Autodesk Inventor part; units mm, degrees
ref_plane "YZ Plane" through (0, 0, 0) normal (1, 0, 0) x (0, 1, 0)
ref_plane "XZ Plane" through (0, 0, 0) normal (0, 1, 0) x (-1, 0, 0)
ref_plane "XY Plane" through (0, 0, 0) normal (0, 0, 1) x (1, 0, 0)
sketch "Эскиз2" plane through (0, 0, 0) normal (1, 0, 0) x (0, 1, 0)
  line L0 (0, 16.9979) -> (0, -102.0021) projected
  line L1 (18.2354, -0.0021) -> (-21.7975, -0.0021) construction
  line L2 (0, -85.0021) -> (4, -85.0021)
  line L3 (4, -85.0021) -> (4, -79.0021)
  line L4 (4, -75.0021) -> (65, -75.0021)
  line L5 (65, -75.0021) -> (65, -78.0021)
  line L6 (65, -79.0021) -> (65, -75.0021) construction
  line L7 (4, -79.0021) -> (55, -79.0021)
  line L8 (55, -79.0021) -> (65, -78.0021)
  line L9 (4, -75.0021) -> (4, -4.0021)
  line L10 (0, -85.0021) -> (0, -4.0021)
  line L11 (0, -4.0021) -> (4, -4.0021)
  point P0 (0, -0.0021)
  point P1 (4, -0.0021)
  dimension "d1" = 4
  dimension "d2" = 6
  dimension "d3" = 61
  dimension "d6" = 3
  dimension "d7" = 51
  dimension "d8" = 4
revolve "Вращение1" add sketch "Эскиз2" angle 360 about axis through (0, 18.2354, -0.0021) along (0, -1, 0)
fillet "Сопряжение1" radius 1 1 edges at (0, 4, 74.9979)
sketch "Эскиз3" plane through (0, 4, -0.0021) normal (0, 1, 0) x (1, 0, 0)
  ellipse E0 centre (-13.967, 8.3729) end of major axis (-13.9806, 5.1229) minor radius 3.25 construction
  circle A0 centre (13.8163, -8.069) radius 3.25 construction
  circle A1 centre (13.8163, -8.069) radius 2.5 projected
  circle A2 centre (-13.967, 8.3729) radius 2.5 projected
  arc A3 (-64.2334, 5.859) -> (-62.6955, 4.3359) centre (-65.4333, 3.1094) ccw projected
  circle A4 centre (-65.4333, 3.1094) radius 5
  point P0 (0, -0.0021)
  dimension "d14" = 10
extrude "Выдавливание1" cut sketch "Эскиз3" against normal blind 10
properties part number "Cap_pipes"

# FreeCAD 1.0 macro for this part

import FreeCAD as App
import Part
import Sketcher


def edges_at(feature, points):
    """Names of the edges that pass closest to the given points."""
    edges = feature.Shape.Edges
    near = lambda p: min(range(len(edges)), key=lambda i: edges[i].distToShape(Part.Vertex(*p))[0])
    return sorted({f"Edge{near(p) + 1}" for p in points})


def add_polygon(sketch, points):
    """Adds a closed chain of lines whose ends are joined by coincident constraints."""
    first, n = sketch.GeometryCount, len(points)
    for a, b in zip(points, points[1:] + points[:1]):
        sketch.addGeometry(Part.LineSegment(App.Vector(*a, 0), App.Vector(*b, 0)), False)
    for i in range(n):
        sketch.addConstraint(Sketcher.Constraint("Coincident", first + i, 2, first + (i + 1) % n, 1))

doc = App.newDocument("Part")
params = doc.addObject("Spreadsheet::Sheet", "Params")
for row, (alias, value) in enumerate([
    ("sketch1_width", "4 mm"),
    ("sketch1_width2", "51 mm"),
    ("sketch1_width3", "61 mm"),
    ("sketch1_height", "6 mm"),
    ("sketch1_height2", "3 mm"),
    ("revolution_angle", "360 deg"),
    ("fillet_radius", "1 mm"),
    ("sketch2_diameter", "10 mm"),
    ("sketch2_diameter2", "5 mm"),
    ("pocket1_length", "10 mm"),
], start=1):
    params.set(f"A{row}", alias)
    params.set(f"B{row}", "=" + value)
    params.setAlias(f"B{row}", alias)

body = doc.addObject("PartDesign::Body", "Body")

# Sketch on YZ plane
sketch1 = body.newObject("Sketcher::SketchObject", "Sketch")
sketch1.AttachmentSupport = (doc.getObject("YZ_Plane"), [""])
sketch1.MapMode = "FlatFace"
add_polygon(sketch1, [(4, -4), (0, -4), (0, -85), (4, -85), (4, -79), (55, -79), (65, -78), (65, -75), (4, -75)])  # lines 0-8
sketch1.addGeometry(Part.LineSegment(App.Vector(65, 0, 0), App.Vector(0, 0, 0)), True)  # axis
sketch1.addConstraint(Sketcher.Constraint("Horizontal", 0))
sketch1.addConstraint(Sketcher.Constraint("Vertical", 1))
sketch1.addConstraint(Sketcher.Constraint("Horizontal", 2))
sketch1.addConstraint(Sketcher.Constraint("Vertical", 3))
sketch1.addConstraint(Sketcher.Constraint("Horizontal", 4))
sketch1.addConstraint(Sketcher.Constraint("Vertical", 6))
sketch1.addConstraint(Sketcher.Constraint("Horizontal", 7))
sketch1.addConstraint(Sketcher.Constraint("Vertical", 8))
sketch1.addConstraint(Sketcher.Constraint("Horizontal", 9))
sketch1.addConstraint(Sketcher.Constraint("PointOnObject", 0, 2, -2))
sketch1.addConstraint(Sketcher.Constraint("PointOnObject", 9, 2, -2))
sketch1.addConstraint(Sketcher.Constraint("Vertical", 3, 2, 7, 2))
sketch1.addConstraint(Sketcher.Constraint("Vertical", 6, 2, 9, 1))
sketch1.addConstraint(Sketcher.Constraint("DistanceX", 0, 2, 0, 1, 4.0))
sketch1.addConstraint(Sketcher.Constraint("DistanceX", 4, 1, 4, 2, 51.0))
sketch1.addConstraint(Sketcher.Constraint("DistanceX", 7, 2, 7, 1, 61.0))
sketch1.addConstraint(Sketcher.Constraint("DistanceY", 3, 1, 3, 2, 6.0))
sketch1.addConstraint(Sketcher.Constraint("DistanceY", 6, 1, 6, 2, 3.0))
sketch1.addConstraint(Sketcher.Constraint("DistanceY", 4, 2, 6, 2, 4.0))
sketch1.addConstraint(Sketcher.Constraint("DistanceY", 8, 2, 9, 1, 4.0))
sketch1.addConstraint(Sketcher.Constraint("DistanceY", 1, 2, 1, 1, 81.0))
sketch1.addConstraint(Sketcher.Constraint("DistanceY", 0, 2, -1, 1, 4.002))
sketch1.setExpression("Constraints[22]", "Params.sketch1_width")
sketch1.setExpression("Constraints[23]", "Params.sketch1_width2")
sketch1.setExpression("Constraints[24]", "Params.sketch1_width3")
sketch1.setExpression("Constraints[25]", "Params.sketch1_height")
sketch1.setExpression("Constraints[26]", "Params.sketch1_height2")
revolution = body.newObject("PartDesign::Revolution", "Revolution")
revolution.Profile = sketch1
revolution.ReferenceAxis = (sketch1, ["Axis0"])
revolution.setExpression("Angle", "Params.revolution_angle")
doc.recompute()

fillet = body.newObject("PartDesign::Fillet", "Fillet")
fillet.Base = (revolution, edges_at(revolution, [(0, 4, 74.998)]))
fillet.setExpression("Radius", "Params.fillet_radius")

# Sketch on XZ plane
sketch2 = body.newObject("Sketcher::SketchObject", "Sketch001")
sketch2.AttachmentSupport = (doc.getObject("XZ_Plane"), [""])
sketch2.MapMode = "FlatFace"
sketch2.AttachmentOffset = App.Placement(App.Vector(0, 0, -4), App.Rotation())
sketch2.addGeometry(Part.Circle(App.Vector(13.8, 8.1, 0), App.Vector(0, 0, 1), 2.5), False)
sketch2.addGeometry(Part.Circle(App.Vector(-14, -8.4, 0), App.Vector(0, 0, 1), 2.5), False)
sketch2.addGeometry(Part.Circle(App.Vector(-65.4, -3.1, 0), App.Vector(0, 0, 1), 5), False)
sketch2.addConstraint(Sketcher.Constraint("Equal", 0, 1))
sketch2.addConstraint(Sketcher.Constraint("Diameter", 2, 10.0))
sketch2.addConstraint(Sketcher.Constraint("Diameter", 0, 5.0))
sketch2.addConstraint(Sketcher.Constraint("DistanceY", -1, 1, 0, 3, 8.067))
sketch2.addConstraint(Sketcher.Constraint("DistanceX", 1, 3, -1, 1, 13.967))
sketch2.addConstraint(Sketcher.Constraint("DistanceY", 1, 3, -1, 1, 8.375))
sketch2.addConstraint(Sketcher.Constraint("DistanceX", -1, 1, 0, 3, 13.8163))
sketch2.addConstraint(Sketcher.Constraint("DistanceX", 2, 3, -1, 1, 65.4333))
sketch2.addConstraint(Sketcher.Constraint("DistanceY", 2, 3, -1, 1, 3.1115))
sketch2.setExpression("Constraints[1]", "Params.sketch2_diameter")
sketch2.setExpression("Constraints[2]", "Params.sketch2_diameter2")
pocket1 = body.newObject("PartDesign::Pocket", "Pocket")
pocket1.Profile = sketch2
pocket1.setExpression("Length", "Params.pocket1_length")
pocket1.Reversed = True

doc.recompute()
